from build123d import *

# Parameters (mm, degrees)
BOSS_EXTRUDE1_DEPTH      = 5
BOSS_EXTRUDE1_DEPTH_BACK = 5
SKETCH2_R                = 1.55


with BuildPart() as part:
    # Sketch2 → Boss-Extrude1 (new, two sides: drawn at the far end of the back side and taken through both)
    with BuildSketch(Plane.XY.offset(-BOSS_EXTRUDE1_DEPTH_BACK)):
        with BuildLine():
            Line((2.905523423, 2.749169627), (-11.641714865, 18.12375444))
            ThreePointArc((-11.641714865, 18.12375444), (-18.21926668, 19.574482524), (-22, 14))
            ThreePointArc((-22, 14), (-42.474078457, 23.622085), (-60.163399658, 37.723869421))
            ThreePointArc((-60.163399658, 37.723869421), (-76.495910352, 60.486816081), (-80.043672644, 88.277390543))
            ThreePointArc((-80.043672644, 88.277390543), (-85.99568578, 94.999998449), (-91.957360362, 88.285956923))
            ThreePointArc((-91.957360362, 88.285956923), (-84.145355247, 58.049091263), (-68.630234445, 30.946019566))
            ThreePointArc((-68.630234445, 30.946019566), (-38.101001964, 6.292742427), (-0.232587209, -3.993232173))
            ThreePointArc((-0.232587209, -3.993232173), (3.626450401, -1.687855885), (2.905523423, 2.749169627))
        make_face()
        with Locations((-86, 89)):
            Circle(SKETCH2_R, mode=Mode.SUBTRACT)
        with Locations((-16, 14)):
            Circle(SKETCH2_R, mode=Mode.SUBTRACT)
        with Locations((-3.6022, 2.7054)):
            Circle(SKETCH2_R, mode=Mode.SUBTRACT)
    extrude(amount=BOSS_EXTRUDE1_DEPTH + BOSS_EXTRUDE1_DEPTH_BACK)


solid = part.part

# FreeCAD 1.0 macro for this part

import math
import FreeCAD as App
import Part
import Sketcher

V = App.Vector
Q = App.Units.Quantity

doc = App.newDocument("Part")
body = doc.addObject("PartDesign::Body", "Body")

# Sketch on XY plane
sketch1 = body.newObject("Sketcher::SketchObject", "Sketch")
sketch1.AttachmentSupport = (doc.getObject("XY_Plane"), [""])
sketch1.MapMode = "FlatFace"
sketch1.addGeometry([
    Part.LineSegment(V(2.9, 2.7, 0), V(-11.6, 18.1, 0)),  # 0
    Part.ArcOfCircle(Part.Circle(V(-16, 14, 0), V(0, 0, 1), 6), math.radians(43), math.radians(180)),  # 1
    Part.ArcOfCircle(Part.Circle(V(8.7, 106, 0), V(0, 0, 1), 97), math.radians(-135), math.radians(-108)),  # 2
    Part.ArcOfCircle(Part.Circle(V(-23.3, 81.4, 0), V(0, 0, 1), 57.1), math.radians(173), math.radians(230)),  # 3
    Part.ArcOfCircle(Part.Circle(V(-86, 89, 0), V(0, 0, 1), 6), math.radians(-7), math.radians(187)),  # 4
    Part.ArcOfCircle(Part.Circle(V(24.5, 102.2, 0), V(0, 0, 1), 117.3), math.radians(-173), math.radians(-143)),  # 5
    Part.ArcOfCircle(Part.Circle(V(5.3, 91.3, 0), V(0, 0, 1), 95.4), math.radians(-141), math.radians(-93)),  # 6
    Part.ArcOfCircle(Part.Circle(V(0, 0, 0), V(0, 0, 1), 4), math.radians(-93), math.radians(43)),  # 7
    Part.Circle(V(-3.6, 2.7, 0), V(0, 0, 1), 1.6),  # 8
    Part.Circle(V(-16, 14, 0), V(0, 0, 1), 1.6),  # 9
    Part.Circle(V(-86, 89, 0), V(0, 0, 1), 1.6),  # 10
], False)
sketch1.addConstraint([
    Sketcher.Constraint("Tangent", 0, 2, 1, 1),
    Sketcher.Constraint("Coincident", 1, 2, 2, 2),
    Sketcher.Constraint("Coincident", 2, 1, 3, 2),
    Sketcher.Constraint("Tangent", 3, 1, 4, 1),
    Sketcher.Constraint("Tangent", 4, 2, 5, 1),
    Sketcher.Constraint("Coincident", 5, 2, 6, 1),
    Sketcher.Constraint("Tangent", 6, 2, 7, 1),
    Sketcher.Constraint("Tangent", 7, 2, 0, 1),
    Sketcher.Constraint("Coincident", 7, 3, -1, 1),
    Sketcher.Constraint("Coincident", 9, 3, 1, 3),
    Sketcher.Constraint("Coincident", 10, 3, 4, 3),
    Sketcher.Constraint("Equal", 1, 4),
    Sketcher.Constraint("Equal", 8, 9),
    Sketcher.Constraint("Equal", 9, 10),
    Sketcher.Constraint("Horizontal", 9, 3, 1, 2),
    Sketcher.Constraint("Radius", 1, Q("6 mm")),
    Sketcher.Constraint("Radius", 7, Q("4 mm")),
    Sketcher.Constraint("Diameter", 8, Q("3.1 mm")),
    Sketcher.Constraint("DistanceX", 1, 3, -1, 1, Q("16 mm")),
    Sketcher.Constraint("DistanceY", -1, 1, 1, 3, Q("14 mm")),
    Sketcher.Constraint("DistanceX", 4, 3, -1, 1, Q("86 mm")),
    Sketcher.Constraint("DistanceY", -1, 1, 4, 3, Q("89 mm")),
    Sketcher.Constraint("Radius", 3, Q("57.134571 mm")),
    Sketcher.Constraint("Radius", 6, Q("95.44354 mm")),
    Sketcher.Constraint("Radius", 2, Q("97.023775 mm")),
    Sketcher.Constraint("Radius", 5, Q("117.277023 mm")),
    Sketcher.Constraint("DistanceY", -1, 1, 2, 3, Q("106.0223 mm")),
    Sketcher.Constraint("DistanceX", 8, 3, -1, 1, Q("3.6022 mm")),
    Sketcher.Constraint("DistanceY", -1, 1, 8, 3, Q("2.7054 mm")),
    Sketcher.Constraint("DistanceX", 2, 1, -1, 1, Q("60.1634 mm")),
    Sketcher.Constraint("DistanceX", -1, 1, 5, 3, Q("24.486221 mm")),
    Sketcher.Constraint("DistanceX", -1, 1, 6, 3, Q("5.317149 mm")),
])
pad1 = body.newObject("PartDesign::Pad", "Pad")
pad1.Profile = sketch1
pad1.Type = "TwoLengths"
pad1.Length = 5
pad1.Length2 = 5

doc.recompute()
